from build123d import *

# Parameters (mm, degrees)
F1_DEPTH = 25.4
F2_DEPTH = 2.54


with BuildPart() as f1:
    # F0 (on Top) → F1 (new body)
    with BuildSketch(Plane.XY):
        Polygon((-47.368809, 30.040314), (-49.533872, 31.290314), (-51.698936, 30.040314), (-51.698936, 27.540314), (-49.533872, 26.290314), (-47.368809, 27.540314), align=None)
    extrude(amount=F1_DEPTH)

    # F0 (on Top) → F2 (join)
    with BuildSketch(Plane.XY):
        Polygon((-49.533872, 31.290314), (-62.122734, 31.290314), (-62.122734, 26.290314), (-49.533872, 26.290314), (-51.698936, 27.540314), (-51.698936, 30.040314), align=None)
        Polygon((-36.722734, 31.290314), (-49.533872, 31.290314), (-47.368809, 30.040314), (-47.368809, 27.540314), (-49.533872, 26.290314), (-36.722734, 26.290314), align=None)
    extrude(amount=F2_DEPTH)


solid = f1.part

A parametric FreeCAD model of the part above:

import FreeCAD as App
import Part
import Sketcher

V = App.Vector
Q = App.Units.Quantity

doc = App.newDocument("Part")
params = doc.addObject("Spreadsheet::Sheet", "Params")
for row, (alias, value) in enumerate([
    ("sketch1_height", "2.5 mm"),
    ("pad1_length", "25.4 mm"),
    ("sketch2_height", "5 mm"),
    ("sketch2_height2", "2.5 mm"),
    ("pad2_length", "2.54 mm"),
], start=1):
    params.set(f"A{row}", alias)
    params.set(f"B{row}", "=" + value)
    params.setAlias(f"B{row}", alias)

body = doc.addObject("PartDesign::Body", "Body")

sketch1 = body.newObject("Sketcher::SketchObject", "Sketch")
sketch1.AttachmentSupport = (doc.getObject("XY_Plane"), [""])
sketch1.MapMode = "FlatFace"
sketch1.addGeometry(Part.LineSegment(V(-47.4, 30, 0), V(-49.5, 31.3, 0)), False)
sketch1.addGeometry(Part.LineSegment(V(-49.5, 31.3, 0), V(-51.7, 30, 0)), False)
sketch1.addGeometry(Part.LineSegment(V(-51.7, 30, 0), V(-51.7, 27.5, 0)), False)
sketch1.addGeometry(Part.LineSegment(V(-51.7, 27.5, 0), V(-49.5, 26.3, 0)), False)
sketch1.addGeometry(Part.LineSegment(V(-49.5, 26.3, 0), V(-47.4, 27.5, 0)), False)
sketch1.addGeometry(Part.LineSegment(V(-47.4, 27.5, 0), V(-47.4, 30, 0)), False)
sketch1.addConstraint(Sketcher.Constraint("Coincident", 0, 2, 1, 1))
sketch1.addConstraint(Sketcher.Constraint("Coincident", 1, 2, 2, 1))
sketch1.addConstraint(Sketcher.Constraint("Coincident", 2, 2, 3, 1))
sketch1.addConstraint(Sketcher.Constraint("Coincident", 3, 2, 4, 1))
sketch1.addConstraint(Sketcher.Constraint("Coincident", 4, 2, 5, 1))
sketch1.addConstraint(Sketcher.Constraint("Coincident", 5, 2, 0, 1))
sketch1.addConstraint(Sketcher.Constraint("Vertical", 2))
sketch1.addConstraint(Sketcher.Constraint("Vertical", 5))
sketch1.addConstraint(Sketcher.Constraint("Parallel", 0, 3))
sketch1.addConstraint(Sketcher.Constraint("Parallel", 1, 4))
sketch1.addConstraint(Sketcher.Constraint("Horizontal", 2, 2, 4, 2))
sketch1.addConstraint(Sketcher.Constraint("Horizontal", 1, 2, 5, 2))
sketch1.addConstraint(Sketcher.Constraint("Vertical", 0, 2, 3, 2))
sketch1.addConstraint(Sketcher.Constraint("Angle", 0, Q("149.999994 deg")))
sketch1.addConstraint(Sketcher.Constraint("DistanceY", 2, 2, 2, 1, Q("2.5 mm")))
sketch1.addConstraint(Sketcher.Constraint("DistanceY", 3, 2, 0, 2, Q("5 mm")))
sketch1.addConstraint(Sketcher.Constraint("DistanceX", 4, 2, -1, 1, Q("47.368809 mm")))
sketch1.addConstraint(Sketcher.Constraint("DistanceY", -1, 1, 0, 2, Q("31.290314 mm")))
sketch1.setExpression("Constraints[14]", "Params.sketch1_height")
pad1 = body.newObject("PartDesign::Pad", "Pad")
pad1.Profile = sketch1
pad1.setExpression("Length", "Params.pad1_length")

sketch2 = body.newObject("Sketcher::SketchObject", "Sketch001")
sketch2.AttachmentSupport = (doc.getObject("XY_Plane"), [""])
sketch2.MapMode = "FlatFace"
sketch2.addGeometry(Part.LineSegment(V(-49.5, 31.3, 0), V(-62.1, 31.3, 0)), False)
sketch2.addGeometry(Part.LineSegment(V(-62.1, 31.3, 0), V(-62.1, 26.3, 0)), False)
sketch2.addGeometry(Part.LineSegment(V(-62.1, 26.3, 0), V(-49.5, 26.3, 0)), False)
sketch2.addGeometry(Part.LineSegment(V(-49.5, 26.3, 0), V(-51.7, 27.5, 0)), False)
sketch2.addGeometry(Part.LineSegment(V(-51.7, 27.5, 0), V(-51.7, 30, 0)), False)
sketch2.addGeometry(Part.LineSegment(V(-51.7, 30, 0), V(-49.5, 31.3, 0)), False)
sketch2.addGeometry(Part.LineSegment(V(-36.7, 31.3, 0), V(-49.5, 31.3, 0)), False)
sketch2.addGeometry(Part.LineSegment(V(-49.5, 31.3, 0), V(-47.4, 30, 0)), False)
sketch2.addGeometry(Part.LineSegment(V(-47.4, 30, 0), V(-47.4, 27.5, 0)), False)
sketch2.addGeometry(Part.LineSegment(V(-47.4, 27.5, 0), V(-49.5, 26.3, 0)), False)
sketch2.addGeometry(Part.LineSegment(V(-49.5, 26.3, 0), V(-36.7, 26.3, 0)), False)
sketch2.addGeometry(Part.LineSegment(V(-36.7, 26.3, 0), V(-36.7, 31.3, 0)), False)
sketch2.addConstraint(Sketcher.Constraint("Coincident", 0, 2, 1, 1))
sketch2.addConstraint(Sketcher.Constraint("Coincident", 1, 2, 2, 1))
sketch2.addConstraint(Sketcher.Constraint("Coincident", 2, 2, 3, 1))
sketch2.addConstraint(Sketcher.Constraint("Coincident", 3, 2, 4, 1))
sketch2.addConstraint(Sketcher.Constraint("Coincident", 4, 2, 5, 1))
sketch2.addConstraint(Sketcher.Constraint("Coincident", 5, 2, 0, 1))
sketch2.addConstraint(Sketcher.Constraint("Coincident", 6, 2, 7, 1))
sketch2.addConstraint(Sketcher.Constraint("Coincident", 7, 2, 8, 1))
sketch2.addConstraint(Sketcher.Constraint("Coincident", 8, 2, 9, 1))
sketch2.addConstraint(Sketcher.Constraint("Coincident", 9, 2, 10, 1))
sketch2.addConstraint(Sketcher.Constraint("Coincident", 10, 2, 11, 1))
sketch2.addConstraint(Sketcher.Constraint("Coincident", 11, 2, 6, 1))
sketch2.addConstraint(Sketcher.Constraint("Horizontal", 0))
sketch2.addConstraint(Sketcher.Constraint("Vertical", 1))
sketch2.addConstraint(Sketcher.Constraint("Horizontal", 2))
sketch2.addConstraint(Sketcher.Constraint("Vertical", 4))
sketch2.addConstraint(Sketcher.Constraint("Horizontal", 6))
sketch2.addConstraint(Sketcher.Constraint("Vertical", 8))
sketch2.addConstraint(Sketcher.Constraint("Horizontal", 10))
sketch2.addConstraint(Sketcher.Constraint("Vertical", 11))
sketch2.addConstraint(Sketcher.Constraint("Coincident", 6, 2, 5, 2))
sketch2.addConstraint(Sketcher.Constraint("Coincident", 9, 2, 2, 2))
sketch2.addConstraint(Sketcher.Constraint("Parallel", 3, 7))
sketch2.addConstraint(Sketcher.Constraint("Parallel", 5, 9))
sketch2.addConstraint(Sketcher.Constraint("Horizontal", 4, 2, 7, 2))
sketch2.addConstraint(Sketcher.Constraint("Horizontal", 3, 2, 8, 2))
sketch2.addConstraint(Sketcher.Constraint("Vertical", 2, 2, 5, 2))
sketch2.addConstraint(Sketcher.Constraint("DistanceY", 1, 2, 1, 1, Q("5 mm")))
sketch2.addConstraint(Sketcher.Constraint("Angle", 3, Q("150.000006 deg")))
sketch2.addConstraint(Sketcher.Constraint("DistanceY", 4, 1, 4, 2, Q("2.5 mm")))
sketch2.addConstraint(Sketcher.Constraint("DistanceX", 0, 2, 0, 1, Q("12.588862 mm")))
sketch2.addConstraint(Sketcher.Constraint("DistanceX", 6, 2, 6, 1, Q("12.811138 mm")))
sketch2.addConstraint(Sketcher.Constraint("DistanceX", 7, 2, -1, 1, Q("47.368809 mm")))
sketch2.addConstraint(Sketcher.Constraint("DistanceY", -1, 1, 0, 2, Q("31.290314 mm")))
sketch2.setExpression("Constraints[27]", "Params.sketch2_height")
sketch2.setExpression("Constraints[29]", "Params.sketch2_height2")
pad2 = body.newObject("PartDesign::Pad", "Pad001")
pad2.Profile = sketch2
pad2.setExpression("Length", "Params.pad2_length")

doc.recompute()
